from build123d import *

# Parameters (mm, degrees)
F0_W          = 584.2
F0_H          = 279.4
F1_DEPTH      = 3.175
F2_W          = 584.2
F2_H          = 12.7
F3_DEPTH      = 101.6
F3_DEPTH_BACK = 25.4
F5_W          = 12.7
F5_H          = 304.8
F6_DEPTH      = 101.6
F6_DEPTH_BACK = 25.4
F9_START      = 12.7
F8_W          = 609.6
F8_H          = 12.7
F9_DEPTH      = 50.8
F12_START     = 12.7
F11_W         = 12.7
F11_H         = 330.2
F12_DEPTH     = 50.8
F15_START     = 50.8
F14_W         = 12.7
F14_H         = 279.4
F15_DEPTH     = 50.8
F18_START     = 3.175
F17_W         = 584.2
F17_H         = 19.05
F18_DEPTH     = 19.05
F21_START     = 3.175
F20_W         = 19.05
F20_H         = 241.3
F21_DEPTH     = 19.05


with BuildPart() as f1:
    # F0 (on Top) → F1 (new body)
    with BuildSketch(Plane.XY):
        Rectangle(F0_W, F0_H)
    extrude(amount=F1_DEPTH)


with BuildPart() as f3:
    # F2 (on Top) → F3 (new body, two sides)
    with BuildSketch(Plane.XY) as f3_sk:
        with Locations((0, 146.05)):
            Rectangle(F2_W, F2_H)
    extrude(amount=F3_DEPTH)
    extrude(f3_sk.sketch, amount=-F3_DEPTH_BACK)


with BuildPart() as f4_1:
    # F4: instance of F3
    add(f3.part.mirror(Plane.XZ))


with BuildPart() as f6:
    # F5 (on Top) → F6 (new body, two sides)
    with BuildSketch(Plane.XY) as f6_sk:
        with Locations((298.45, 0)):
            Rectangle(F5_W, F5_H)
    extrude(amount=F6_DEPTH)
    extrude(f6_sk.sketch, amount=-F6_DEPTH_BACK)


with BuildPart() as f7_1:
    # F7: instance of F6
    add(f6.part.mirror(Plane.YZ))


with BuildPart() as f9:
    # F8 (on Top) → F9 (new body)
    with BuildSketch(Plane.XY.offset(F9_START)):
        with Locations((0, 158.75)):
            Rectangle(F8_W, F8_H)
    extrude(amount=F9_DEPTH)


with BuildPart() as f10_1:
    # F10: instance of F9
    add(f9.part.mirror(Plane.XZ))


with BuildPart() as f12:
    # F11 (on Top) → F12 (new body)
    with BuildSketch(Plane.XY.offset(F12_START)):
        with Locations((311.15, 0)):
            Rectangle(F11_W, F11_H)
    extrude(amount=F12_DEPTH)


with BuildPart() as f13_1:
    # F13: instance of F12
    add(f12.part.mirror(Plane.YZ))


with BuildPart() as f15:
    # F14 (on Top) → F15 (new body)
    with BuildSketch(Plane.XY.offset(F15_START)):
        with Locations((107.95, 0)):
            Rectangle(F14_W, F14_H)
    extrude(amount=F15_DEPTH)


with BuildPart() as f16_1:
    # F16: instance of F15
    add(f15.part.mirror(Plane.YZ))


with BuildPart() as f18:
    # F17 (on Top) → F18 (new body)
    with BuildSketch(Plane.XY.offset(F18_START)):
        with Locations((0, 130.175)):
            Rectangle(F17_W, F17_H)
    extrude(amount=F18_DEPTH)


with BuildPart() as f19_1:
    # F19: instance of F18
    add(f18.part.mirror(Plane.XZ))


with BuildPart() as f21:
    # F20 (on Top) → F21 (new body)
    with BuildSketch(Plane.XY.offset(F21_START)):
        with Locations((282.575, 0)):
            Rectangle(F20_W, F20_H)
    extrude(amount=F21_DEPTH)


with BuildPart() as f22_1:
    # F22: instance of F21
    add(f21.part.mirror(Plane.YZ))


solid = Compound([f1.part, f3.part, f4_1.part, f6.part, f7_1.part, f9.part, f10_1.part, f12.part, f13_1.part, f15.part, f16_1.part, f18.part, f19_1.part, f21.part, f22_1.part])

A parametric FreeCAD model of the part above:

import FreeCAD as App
import Part
import Sketcher
Q = App.Units.Quantity

doc = App.newDocument("Part")
body = doc.addObject("PartDesign::Body", "Body")

# Sketch on XY plane
sketch1 = body.newObject("Sketcher::SketchObject", "Sketch")
sketch1.AttachmentSupport = (doc.getObject("XY_Plane"), [""])
sketch1.MapMode = "FlatFace"
sketch1.addGeometry([
    Part.LineSegment(App.Vector(-292, 140, 0), App.Vector(-292, -140, 0)),
    Part.LineSegment(App.Vector(-292, -140, 0), App.Vector(292, -140, 0)),
    Part.LineSegment(App.Vector(292, -140, 0), App.Vector(292, 140, 0)),
    Part.LineSegment(App.Vector(292, 140, 0), App.Vector(-292, 140, 0)),
], False)
sketch1.addConstraint([
    Sketcher.Constraint("Coincident", 0, 2, 1, 1),
    Sketcher.Constraint("Coincident", 1, 2, 2, 1),
    Sketcher.Constraint("Coincident", 2, 2, 3, 1),
    Sketcher.Constraint("Coincident", 3, 2, 0, 1),
    Sketcher.Constraint("Vertical", 0),
    Sketcher.Constraint("Horizontal", 1),
    Sketcher.Constraint("Vertical", 2),
    Sketcher.Constraint("Horizontal", 3),
    Sketcher.Constraint("Symmetric", 0, 2, 2, 2, -1, 1),
    Sketcher.Constraint("DistanceX", 1, 1, 1, 2, Q("23 in")),
    Sketcher.Constraint("DistanceY", 0, 2, 0, 1, Q("11 in")),
])
pad1 = body.newObject("PartDesign::Pad", "Pad")
pad1.Profile = sketch1
pad1.Length = Q("0.125 in")
body2 = doc.addObject("PartDesign::Body", "Body001")

# Sketch on XY plane
sketch2 = body2.newObject("Sketcher::SketchObject", "Sketch001")
sketch2.AttachmentSupport = (doc.getObject("XY_Plane001"), [""])
sketch2.MapMode = "FlatFace"
sketch2.addGeometry([
    Part.LineSegment(App.Vector(-292, 152, 0), App.Vector(-292, 140, 0)),
    Part.LineSegment(App.Vector(-292, 140, 0), App.Vector(292, 140, 0)),
    Part.LineSegment(App.Vector(292, 140, 0), App.Vector(292, 152, 0)),
    Part.LineSegment(App.Vector(292, 152, 0), App.Vector(-292, 152, 0)),
], False)
sketch2.addConstraint([
    Sketcher.Constraint("Coincident", 0, 2, 1, 1),
    Sketcher.Constraint("Coincident", 1, 2, 2, 1),
    Sketcher.Constraint("Coincident", 2, 2, 3, 1),
    Sketcher.Constraint("Coincident", 3, 2, 0, 1),
    Sketcher.Constraint("Vertical", 0),
    Sketcher.Constraint("Horizontal", 1),
    Sketcher.Constraint("Vertical", 2),
    Sketcher.Constraint("Horizontal", 3),
    Sketcher.Constraint("DistanceX", 1, 1, 1, 2, Q("23 in")),
    Sketcher.Constraint("DistanceY", 0, 2, 0, 1, Q("0.5 in")),
    Sketcher.Constraint("DistanceY", -1, 1, 2, 2, Q("6 in")),
    Sketcher.Constraint("DistanceX", 0, 2, -1, 1, Q("11.5 in")),
])
pad2 = body2.newObject("PartDesign::Pad", "Pad001")
pad2.Profile = sketch2
pad2.Type = "TwoLengths"
pad2.Length = Q("4 in")
pad2.Length2 = Q("1 in")
body3 = doc.addObject("PartDesign::Body", "Body002")
doc.recompute()

mirroring = doc.addObject("Part::Mirroring", "Mirroring")
mirroring.Source = body2
mirroring.Base = App.Vector(0, 0, 0)
mirroring.Normal = App.Vector(0, -1, 0)
body3.BaseFeature = mirroring
doc.recompute()
body4 = doc.addObject("PartDesign::Body", "Body003")

# Sketch on XY plane
sketch3 = body4.newObject("Sketcher::SketchObject", "Sketch002")
sketch3.AttachmentSupport = (doc.getObject("XY_Plane003"), [""])
sketch3.MapMode = "FlatFace"
sketch3.addGeometry([
    Part.LineSegment(App.Vector(292, 152, 0), App.Vector(292, -152, 0)),
    Part.LineSegment(App.Vector(292, -152, 0), App.Vector(305, -152, 0)),
    Part.LineSegment(App.Vector(305, -152, 0), App.Vector(305, 152, 0)),
    Part.LineSegment(App.Vector(305, 152, 0), App.Vector(292, 152, 0)),
], False)
sketch3.addConstraint([
    Sketcher.Constraint("Coincident", 0, 2, 1, 1),
    Sketcher.Constraint("Coincident", 1, 2, 2, 1),
    Sketcher.Constraint("Coincident", 2, 2, 3, 1),
    Sketcher.Constraint("Coincident", 3, 2, 0, 1),
    Sketcher.Constraint("Vertical", 0),
    Sketcher.Constraint("Horizontal", 1),
    Sketcher.Constraint("Vertical", 2),
    Sketcher.Constraint("Horizontal", 3),
    Sketcher.Constraint("DistanceY", 0, 2, 0, 1, Q("12 in")),
    Sketcher.Constraint("DistanceX", 1, 1, 1, 2, Q("0.5 in")),
    Sketcher.Constraint("DistanceY", 0, 2, -1, 1, Q("6 in")),
    Sketcher.Constraint("DistanceX", -1, 1, 1, 2, Q("12 in")),
])
pad3 = body4.newObject("PartDesign::Pad", "Pad002")
pad3.Profile = sketch3
pad3.Type = "TwoLengths"
pad3.Length = Q("4 in")
pad3.Length2 = Q("1 in")
body5 = doc.addObject("PartDesign::Body", "Body004")
doc.recompute()

mirroring2 = doc.addObject("Part::Mirroring", "Mirroring001")
mirroring2.Source = body4
mirroring2.Base = App.Vector(0, 0, 0)
mirroring2.Normal = App.Vector(1, 0, 0)
body5.BaseFeature = mirroring2
doc.recompute()
body6 = doc.addObject("PartDesign::Body", "Body005")

# Sketch on XY plane
sketch4 = body6.newObject("Sketcher::SketchObject", "Sketch003")
sketch4.AttachmentSupport = (doc.getObject("XY_Plane005"), [""])
sketch4.MapMode = "FlatFace"
sketch4.AttachmentOffset = App.Placement(App.Vector(0, 0, 0.5 * 25.4), App.Rotation())
sketch4.addGeometry([
    Part.LineSegment(App.Vector(-305, 165, 0), App.Vector(-305, 152, 0)),
    Part.LineSegment(App.Vector(-305, 152, 0), App.Vector(305, 152, 0)),
    Part.LineSegment(App.Vector(305, 152, 0), App.Vector(305, 165, 0)),
    Part.LineSegment(App.Vector(305, 165, 0), App.Vector(-305, 165, 0)),
], False)
sketch4.addConstraint([
    Sketcher.Constraint("Coincident", 0, 2, 1, 1),
    Sketcher.Constraint("Coincident", 1, 2, 2, 1),
    Sketcher.Constraint("Coincident", 2, 2, 3, 1),
    Sketcher.Constraint("Coincident", 3, 2, 0, 1),
    Sketcher.Constraint("Vertical", 0),
    Sketcher.Constraint("Horizontal", 1),
    Sketcher.Constraint("Vertical", 2),
    Sketcher.Constraint("Horizontal", 3),
    Sketcher.Constraint("DistanceX", 1, 1, 1, 2, Q("24 in")),
    Sketcher.Constraint("DistanceY", 0, 2, 0, 1, Q("0.5 in")),
    Sketcher.Constraint("DistanceX", 0, 2, -1, 1, Q("12 in")),
    Sketcher.Constraint("DistanceY", -1, 1, 0, 2, Q("6 in")),
])
pad4 = body6.newObject("PartDesign::Pad", "Pad003")
pad4.Profile = sketch4
pad4.Length = Q("2 in")
body7 = doc.addObject("PartDesign::Body", "Body006")
doc.recompute()

mirroring3 = doc.addObject("Part::Mirroring", "Mirroring002")
mirroring3.Source = body6
mirroring3.Base = App.Vector(0, 0, 0)
mirroring3.Normal = App.Vector(0, -1, 0)
body7.BaseFeature = mirroring3
doc.recompute()
body8 = doc.addObject("PartDesign::Body", "Body007")

# Sketch on XY plane
sketch5 = body8.newObject("Sketcher::SketchObject", "Sketch004")
sketch5.AttachmentSupport = (doc.getObject("XY_Plane007"), [""])
sketch5.MapMode = "FlatFace"
sketch5.AttachmentOffset = App.Placement(App.Vector(0, 0, 0.5 * 25.4), App.Rotation())
sketch5.addGeometry([
    Part.LineSegment(App.Vector(305, 165, 0), App.Vector(305, -165, 0)),
    Part.LineSegment(App.Vector(305, -165, 0), App.Vector(318, -165, 0)),
    Part.LineSegment(App.Vector(318, -165, 0), App.Vector(318, 165, 0)),
    Part.LineSegment(App.Vector(318, 165, 0), App.Vector(305, 165, 0)),
], False)
sketch5.addConstraint([
    Sketcher.Constraint("Coincident", 0, 2, 1, 1),
    Sketcher.Constraint("Coincident", 1, 2, 2, 1),
    Sketcher.Constraint("Coincident", 2, 2, 3, 1),
    Sketcher.Constraint("Coincident", 3, 2, 0, 1),
    Sketcher.Constraint("Vertical", 0),
    Sketcher.Constraint("Horizontal", 1),
    Sketcher.Constraint("Vertical", 2),
    Sketcher.Constraint("Horizontal", 3),
    Sketcher.Constraint("DistanceY", 0, 2, 0, 1, Q("13 in")),
    Sketcher.Constraint("DistanceX", 1, 1, 1, 2, Q("0.5 in")),
    Sketcher.Constraint("DistanceX", -1, 1, 0, 2, Q("12 in")),
    Sketcher.Constraint("DistanceY", 0, 2, -1, 1, Q("6.5 in")),
])
pad5 = body8.newObject("PartDesign::Pad", "Pad004")
pad5.Profile = sketch5
pad5.Length = Q("2 in")
body9 = doc.addObject("PartDesign::Body", "Body008")
doc.recompute()

mirroring4 = doc.addObject("Part::Mirroring", "Mirroring003")
mirroring4.Source = body8
mirroring4.Base = App.Vector(0, 0, 0)
mirroring4.Normal = App.Vector(1, 0, 0)
body9.BaseFeature = mirroring4
doc.recompute()
body10 = doc.addObject("PartDesign::Body", "Body009")

# Sketch on XY plane
sketch6 = body10.newObject("Sketcher::SketchObject", "Sketch005")
sketch6.AttachmentSupport = (doc.getObject("XY_Plane009"), [""])
sketch6.MapMode = "FlatFace"
sketch6.AttachmentOffset = App.Placement(App.Vector(0, 0, 2 * 25.4), App.Rotation())
sketch6.addGeometry([
    Part.LineSegment(App.Vector(102, 140, 0), App.Vector(102, -140, 0)),
    Part.LineSegment(App.Vector(102, -140, 0), App.Vector(114, -140, 0)),
    Part.LineSegment(App.Vector(114, -140, 0), App.Vector(114, 140, 0)),
    Part.LineSegment(App.Vector(114, 140, 0), App.Vector(102, 140, 0)),
], False)
sketch6.addConstraint([
    Sketcher.Constraint("Coincident", 0, 2, 1, 1),
    Sketcher.Constraint("Coincident", 1, 2, 2, 1),
    Sketcher.Constraint("Coincident", 2, 2, 3, 1),
    Sketcher.Constraint("Coincident", 3, 2, 0, 1),
    Sketcher.Constraint("Vertical", 0),
    Sketcher.Constraint("Horizontal", 1),
    Sketcher.Constraint("Vertical", 2),
    Sketcher.Constraint("Horizontal", 3),
    Sketcher.Constraint("DistanceY", 0, 2, 0, 1, Q("11 in")),
    Sketcher.Constraint("DistanceX", 1, 1, 1, 2, Q("0.5 in")),
    Sketcher.Constraint("DistanceX", -1, 1, 0, 2, Q("4 in")),
    Sketcher.Constraint("DistanceY", 0, 2, -1, 1, Q("5.5 in")),
])
pad6 = body10.newObject("PartDesign::Pad", "Pad005")
pad6.Profile = sketch6
pad6.Length = Q("2 in")
body11 = doc.addObject("PartDesign::Body", "Body010")
doc.recompute()

mirroring5 = doc.addObject("Part::Mirroring", "Mirroring004")
mirroring5.Source = body10
mirroring5.Base = App.Vector(0, 0, 0)
mirroring5.Normal = App.Vector(1, 0, 0)
body11.BaseFeature = mirroring5
doc.recompute()
body12 = doc.addObject("PartDesign::Body", "Body011")

# Sketch on XY plane
sketch7 = body12.newObject("Sketcher::SketchObject", "Sketch006")
sketch7.AttachmentSupport = (doc.getObject("XY_Plane011"), [""])
sketch7.MapMode = "FlatFace"
sketch7.AttachmentOffset = App.Placement(App.Vector(0, 0, 0.125 * 25.4), App.Rotation())
sketch7.addGeometry([
    Part.LineSegment(App.Vector(-292, 140, 0), App.Vector(-292, 121, 0)),
    Part.LineSegment(App.Vector(-292, 121, 0), App.Vector(292, 121, 0)),
    Part.LineSegment(App.Vector(292, 121, 0), App.Vector(292, 140, 0)),
    Part.LineSegment(App.Vector(292, 140, 0), App.Vector(-292, 140, 0)),
], False)
sketch7.addConstraint([
    Sketcher.Constraint("Coincident", 0, 2, 1, 1),
    Sketcher.Constraint("Coincident", 1, 2, 2, 1),
    Sketcher.Constraint("Coincident", 2, 2, 3, 1),
    Sketcher.Constraint("Coincident", 3, 2, 0, 1),
    Sketcher.Constraint("Vertical", 0),
    Sketcher.Constraint("Horizontal", 1),
    Sketcher.Constraint("Vertical", 2),
    Sketcher.Constraint("Horizontal", 3),
    Sketcher.Constraint("DistanceX", 1, 1, 1, 2, Q("23 in")),
    Sketcher.Constraint("DistanceY", 0, 2, 0, 1, Q("0.75 in")),
    Sketcher.Constraint("DistanceX", 0, 2, -1, 1, Q("11.5 in")),
    Sketcher.Constraint("DistanceY", -1, 1, 2, 2, Q("5.5 in")),
])
pad7 = body12.newObject("PartDesign::Pad", "Pad006")
pad7.Profile = sketch7
pad7.Length = Q("0.75 in")
body13 = doc.addObject("PartDesign::Body", "Body012")
doc.recompute()

mirroring6 = doc.addObject("Part::Mirroring", "Mirroring005")
mirroring6.Source = body12
mirroring6.Base = App.Vector(0, 0, 0)
mirroring6.Normal = App.Vector(0, -1, 0)
body13.BaseFeature = mirroring6
doc.recompute()
body14 = doc.addObject("PartDesign::Body", "Body013")

# Sketch on XY plane
sketch8 = body14.newObject("Sketcher::SketchObject", "Sketch007")
sketch8.AttachmentSupport = (doc.getObject("XY_Plane013"), [""])
sketch8.MapMode = "FlatFace"
sketch8.AttachmentOffset = App.Placement(App.Vector(0, 0, 0.125 * 25.4), App.Rotation())
sketch8.addGeometry([
    Part.LineSegment(App.Vector(273, 121, 0), App.Vector(273, -121, 0)),
    Part.LineSegment(App.Vector(273, -121, 0), App.Vector(292, -121, 0)),
    Part.LineSegment(App.Vector(292, -121, 0), App.Vector(292, 121, 0)),
    Part.LineSegment(App.Vector(292, 121, 0), App.Vector(273, 121, 0)),
], False)
sketch8.addConstraint([
    Sketcher.Constraint("Coincident", 0, 2, 1, 1),
    Sketcher.Constraint("Coincident", 1, 2, 2, 1),
    Sketcher.Constraint("Coincident", 2, 2, 3, 1),
    Sketcher.Constraint("Coincident", 3, 2, 0, 1),
    Sketcher.Constraint("Vertical", 0),
    Sketcher.Constraint("Horizontal", 1),
    Sketcher.Constraint("Vertical", 2),
    Sketcher.Constraint("Horizontal", 3),
    Sketcher.Constraint("DistanceY", 0, 2, 0, 1, Q("9.5 in")),
    Sketcher.Constraint("DistanceX", 1, 1, 1, 2, Q("0.75 in")),
    Sketcher.Constraint("DistanceX", -1, 1, 1, 2, Q("11.5 in")),
    Sketcher.Constraint("DistanceY", 0, 2, -1, 1, Q("4.75 in")),
])
pad8 = body14.newObject("PartDesign::Pad", "Pad007")
pad8.Profile = sketch8
pad8.Length = Q("0.75 in")
body15 = doc.addObject("PartDesign::Body", "Body014")
doc.recompute()

mirroring7 = doc.addObject("Part::Mirroring", "Mirroring006")
mirroring7.Source = body14
mirroring7.Base = App.Vector(0, 0, 0)
mirroring7.Normal = App.Vector(1, 0, 0)
body15.BaseFeature = mirroring7
doc.recompute()
mirroring.Visibility = False
mirroring2.Visibility = False
mirroring3.Visibility = False
mirroring4.Visibility = False
mirroring5.Visibility = False
mirroring6.Visibility = False
mirroring7.Visibility = False

doc.recompute()
